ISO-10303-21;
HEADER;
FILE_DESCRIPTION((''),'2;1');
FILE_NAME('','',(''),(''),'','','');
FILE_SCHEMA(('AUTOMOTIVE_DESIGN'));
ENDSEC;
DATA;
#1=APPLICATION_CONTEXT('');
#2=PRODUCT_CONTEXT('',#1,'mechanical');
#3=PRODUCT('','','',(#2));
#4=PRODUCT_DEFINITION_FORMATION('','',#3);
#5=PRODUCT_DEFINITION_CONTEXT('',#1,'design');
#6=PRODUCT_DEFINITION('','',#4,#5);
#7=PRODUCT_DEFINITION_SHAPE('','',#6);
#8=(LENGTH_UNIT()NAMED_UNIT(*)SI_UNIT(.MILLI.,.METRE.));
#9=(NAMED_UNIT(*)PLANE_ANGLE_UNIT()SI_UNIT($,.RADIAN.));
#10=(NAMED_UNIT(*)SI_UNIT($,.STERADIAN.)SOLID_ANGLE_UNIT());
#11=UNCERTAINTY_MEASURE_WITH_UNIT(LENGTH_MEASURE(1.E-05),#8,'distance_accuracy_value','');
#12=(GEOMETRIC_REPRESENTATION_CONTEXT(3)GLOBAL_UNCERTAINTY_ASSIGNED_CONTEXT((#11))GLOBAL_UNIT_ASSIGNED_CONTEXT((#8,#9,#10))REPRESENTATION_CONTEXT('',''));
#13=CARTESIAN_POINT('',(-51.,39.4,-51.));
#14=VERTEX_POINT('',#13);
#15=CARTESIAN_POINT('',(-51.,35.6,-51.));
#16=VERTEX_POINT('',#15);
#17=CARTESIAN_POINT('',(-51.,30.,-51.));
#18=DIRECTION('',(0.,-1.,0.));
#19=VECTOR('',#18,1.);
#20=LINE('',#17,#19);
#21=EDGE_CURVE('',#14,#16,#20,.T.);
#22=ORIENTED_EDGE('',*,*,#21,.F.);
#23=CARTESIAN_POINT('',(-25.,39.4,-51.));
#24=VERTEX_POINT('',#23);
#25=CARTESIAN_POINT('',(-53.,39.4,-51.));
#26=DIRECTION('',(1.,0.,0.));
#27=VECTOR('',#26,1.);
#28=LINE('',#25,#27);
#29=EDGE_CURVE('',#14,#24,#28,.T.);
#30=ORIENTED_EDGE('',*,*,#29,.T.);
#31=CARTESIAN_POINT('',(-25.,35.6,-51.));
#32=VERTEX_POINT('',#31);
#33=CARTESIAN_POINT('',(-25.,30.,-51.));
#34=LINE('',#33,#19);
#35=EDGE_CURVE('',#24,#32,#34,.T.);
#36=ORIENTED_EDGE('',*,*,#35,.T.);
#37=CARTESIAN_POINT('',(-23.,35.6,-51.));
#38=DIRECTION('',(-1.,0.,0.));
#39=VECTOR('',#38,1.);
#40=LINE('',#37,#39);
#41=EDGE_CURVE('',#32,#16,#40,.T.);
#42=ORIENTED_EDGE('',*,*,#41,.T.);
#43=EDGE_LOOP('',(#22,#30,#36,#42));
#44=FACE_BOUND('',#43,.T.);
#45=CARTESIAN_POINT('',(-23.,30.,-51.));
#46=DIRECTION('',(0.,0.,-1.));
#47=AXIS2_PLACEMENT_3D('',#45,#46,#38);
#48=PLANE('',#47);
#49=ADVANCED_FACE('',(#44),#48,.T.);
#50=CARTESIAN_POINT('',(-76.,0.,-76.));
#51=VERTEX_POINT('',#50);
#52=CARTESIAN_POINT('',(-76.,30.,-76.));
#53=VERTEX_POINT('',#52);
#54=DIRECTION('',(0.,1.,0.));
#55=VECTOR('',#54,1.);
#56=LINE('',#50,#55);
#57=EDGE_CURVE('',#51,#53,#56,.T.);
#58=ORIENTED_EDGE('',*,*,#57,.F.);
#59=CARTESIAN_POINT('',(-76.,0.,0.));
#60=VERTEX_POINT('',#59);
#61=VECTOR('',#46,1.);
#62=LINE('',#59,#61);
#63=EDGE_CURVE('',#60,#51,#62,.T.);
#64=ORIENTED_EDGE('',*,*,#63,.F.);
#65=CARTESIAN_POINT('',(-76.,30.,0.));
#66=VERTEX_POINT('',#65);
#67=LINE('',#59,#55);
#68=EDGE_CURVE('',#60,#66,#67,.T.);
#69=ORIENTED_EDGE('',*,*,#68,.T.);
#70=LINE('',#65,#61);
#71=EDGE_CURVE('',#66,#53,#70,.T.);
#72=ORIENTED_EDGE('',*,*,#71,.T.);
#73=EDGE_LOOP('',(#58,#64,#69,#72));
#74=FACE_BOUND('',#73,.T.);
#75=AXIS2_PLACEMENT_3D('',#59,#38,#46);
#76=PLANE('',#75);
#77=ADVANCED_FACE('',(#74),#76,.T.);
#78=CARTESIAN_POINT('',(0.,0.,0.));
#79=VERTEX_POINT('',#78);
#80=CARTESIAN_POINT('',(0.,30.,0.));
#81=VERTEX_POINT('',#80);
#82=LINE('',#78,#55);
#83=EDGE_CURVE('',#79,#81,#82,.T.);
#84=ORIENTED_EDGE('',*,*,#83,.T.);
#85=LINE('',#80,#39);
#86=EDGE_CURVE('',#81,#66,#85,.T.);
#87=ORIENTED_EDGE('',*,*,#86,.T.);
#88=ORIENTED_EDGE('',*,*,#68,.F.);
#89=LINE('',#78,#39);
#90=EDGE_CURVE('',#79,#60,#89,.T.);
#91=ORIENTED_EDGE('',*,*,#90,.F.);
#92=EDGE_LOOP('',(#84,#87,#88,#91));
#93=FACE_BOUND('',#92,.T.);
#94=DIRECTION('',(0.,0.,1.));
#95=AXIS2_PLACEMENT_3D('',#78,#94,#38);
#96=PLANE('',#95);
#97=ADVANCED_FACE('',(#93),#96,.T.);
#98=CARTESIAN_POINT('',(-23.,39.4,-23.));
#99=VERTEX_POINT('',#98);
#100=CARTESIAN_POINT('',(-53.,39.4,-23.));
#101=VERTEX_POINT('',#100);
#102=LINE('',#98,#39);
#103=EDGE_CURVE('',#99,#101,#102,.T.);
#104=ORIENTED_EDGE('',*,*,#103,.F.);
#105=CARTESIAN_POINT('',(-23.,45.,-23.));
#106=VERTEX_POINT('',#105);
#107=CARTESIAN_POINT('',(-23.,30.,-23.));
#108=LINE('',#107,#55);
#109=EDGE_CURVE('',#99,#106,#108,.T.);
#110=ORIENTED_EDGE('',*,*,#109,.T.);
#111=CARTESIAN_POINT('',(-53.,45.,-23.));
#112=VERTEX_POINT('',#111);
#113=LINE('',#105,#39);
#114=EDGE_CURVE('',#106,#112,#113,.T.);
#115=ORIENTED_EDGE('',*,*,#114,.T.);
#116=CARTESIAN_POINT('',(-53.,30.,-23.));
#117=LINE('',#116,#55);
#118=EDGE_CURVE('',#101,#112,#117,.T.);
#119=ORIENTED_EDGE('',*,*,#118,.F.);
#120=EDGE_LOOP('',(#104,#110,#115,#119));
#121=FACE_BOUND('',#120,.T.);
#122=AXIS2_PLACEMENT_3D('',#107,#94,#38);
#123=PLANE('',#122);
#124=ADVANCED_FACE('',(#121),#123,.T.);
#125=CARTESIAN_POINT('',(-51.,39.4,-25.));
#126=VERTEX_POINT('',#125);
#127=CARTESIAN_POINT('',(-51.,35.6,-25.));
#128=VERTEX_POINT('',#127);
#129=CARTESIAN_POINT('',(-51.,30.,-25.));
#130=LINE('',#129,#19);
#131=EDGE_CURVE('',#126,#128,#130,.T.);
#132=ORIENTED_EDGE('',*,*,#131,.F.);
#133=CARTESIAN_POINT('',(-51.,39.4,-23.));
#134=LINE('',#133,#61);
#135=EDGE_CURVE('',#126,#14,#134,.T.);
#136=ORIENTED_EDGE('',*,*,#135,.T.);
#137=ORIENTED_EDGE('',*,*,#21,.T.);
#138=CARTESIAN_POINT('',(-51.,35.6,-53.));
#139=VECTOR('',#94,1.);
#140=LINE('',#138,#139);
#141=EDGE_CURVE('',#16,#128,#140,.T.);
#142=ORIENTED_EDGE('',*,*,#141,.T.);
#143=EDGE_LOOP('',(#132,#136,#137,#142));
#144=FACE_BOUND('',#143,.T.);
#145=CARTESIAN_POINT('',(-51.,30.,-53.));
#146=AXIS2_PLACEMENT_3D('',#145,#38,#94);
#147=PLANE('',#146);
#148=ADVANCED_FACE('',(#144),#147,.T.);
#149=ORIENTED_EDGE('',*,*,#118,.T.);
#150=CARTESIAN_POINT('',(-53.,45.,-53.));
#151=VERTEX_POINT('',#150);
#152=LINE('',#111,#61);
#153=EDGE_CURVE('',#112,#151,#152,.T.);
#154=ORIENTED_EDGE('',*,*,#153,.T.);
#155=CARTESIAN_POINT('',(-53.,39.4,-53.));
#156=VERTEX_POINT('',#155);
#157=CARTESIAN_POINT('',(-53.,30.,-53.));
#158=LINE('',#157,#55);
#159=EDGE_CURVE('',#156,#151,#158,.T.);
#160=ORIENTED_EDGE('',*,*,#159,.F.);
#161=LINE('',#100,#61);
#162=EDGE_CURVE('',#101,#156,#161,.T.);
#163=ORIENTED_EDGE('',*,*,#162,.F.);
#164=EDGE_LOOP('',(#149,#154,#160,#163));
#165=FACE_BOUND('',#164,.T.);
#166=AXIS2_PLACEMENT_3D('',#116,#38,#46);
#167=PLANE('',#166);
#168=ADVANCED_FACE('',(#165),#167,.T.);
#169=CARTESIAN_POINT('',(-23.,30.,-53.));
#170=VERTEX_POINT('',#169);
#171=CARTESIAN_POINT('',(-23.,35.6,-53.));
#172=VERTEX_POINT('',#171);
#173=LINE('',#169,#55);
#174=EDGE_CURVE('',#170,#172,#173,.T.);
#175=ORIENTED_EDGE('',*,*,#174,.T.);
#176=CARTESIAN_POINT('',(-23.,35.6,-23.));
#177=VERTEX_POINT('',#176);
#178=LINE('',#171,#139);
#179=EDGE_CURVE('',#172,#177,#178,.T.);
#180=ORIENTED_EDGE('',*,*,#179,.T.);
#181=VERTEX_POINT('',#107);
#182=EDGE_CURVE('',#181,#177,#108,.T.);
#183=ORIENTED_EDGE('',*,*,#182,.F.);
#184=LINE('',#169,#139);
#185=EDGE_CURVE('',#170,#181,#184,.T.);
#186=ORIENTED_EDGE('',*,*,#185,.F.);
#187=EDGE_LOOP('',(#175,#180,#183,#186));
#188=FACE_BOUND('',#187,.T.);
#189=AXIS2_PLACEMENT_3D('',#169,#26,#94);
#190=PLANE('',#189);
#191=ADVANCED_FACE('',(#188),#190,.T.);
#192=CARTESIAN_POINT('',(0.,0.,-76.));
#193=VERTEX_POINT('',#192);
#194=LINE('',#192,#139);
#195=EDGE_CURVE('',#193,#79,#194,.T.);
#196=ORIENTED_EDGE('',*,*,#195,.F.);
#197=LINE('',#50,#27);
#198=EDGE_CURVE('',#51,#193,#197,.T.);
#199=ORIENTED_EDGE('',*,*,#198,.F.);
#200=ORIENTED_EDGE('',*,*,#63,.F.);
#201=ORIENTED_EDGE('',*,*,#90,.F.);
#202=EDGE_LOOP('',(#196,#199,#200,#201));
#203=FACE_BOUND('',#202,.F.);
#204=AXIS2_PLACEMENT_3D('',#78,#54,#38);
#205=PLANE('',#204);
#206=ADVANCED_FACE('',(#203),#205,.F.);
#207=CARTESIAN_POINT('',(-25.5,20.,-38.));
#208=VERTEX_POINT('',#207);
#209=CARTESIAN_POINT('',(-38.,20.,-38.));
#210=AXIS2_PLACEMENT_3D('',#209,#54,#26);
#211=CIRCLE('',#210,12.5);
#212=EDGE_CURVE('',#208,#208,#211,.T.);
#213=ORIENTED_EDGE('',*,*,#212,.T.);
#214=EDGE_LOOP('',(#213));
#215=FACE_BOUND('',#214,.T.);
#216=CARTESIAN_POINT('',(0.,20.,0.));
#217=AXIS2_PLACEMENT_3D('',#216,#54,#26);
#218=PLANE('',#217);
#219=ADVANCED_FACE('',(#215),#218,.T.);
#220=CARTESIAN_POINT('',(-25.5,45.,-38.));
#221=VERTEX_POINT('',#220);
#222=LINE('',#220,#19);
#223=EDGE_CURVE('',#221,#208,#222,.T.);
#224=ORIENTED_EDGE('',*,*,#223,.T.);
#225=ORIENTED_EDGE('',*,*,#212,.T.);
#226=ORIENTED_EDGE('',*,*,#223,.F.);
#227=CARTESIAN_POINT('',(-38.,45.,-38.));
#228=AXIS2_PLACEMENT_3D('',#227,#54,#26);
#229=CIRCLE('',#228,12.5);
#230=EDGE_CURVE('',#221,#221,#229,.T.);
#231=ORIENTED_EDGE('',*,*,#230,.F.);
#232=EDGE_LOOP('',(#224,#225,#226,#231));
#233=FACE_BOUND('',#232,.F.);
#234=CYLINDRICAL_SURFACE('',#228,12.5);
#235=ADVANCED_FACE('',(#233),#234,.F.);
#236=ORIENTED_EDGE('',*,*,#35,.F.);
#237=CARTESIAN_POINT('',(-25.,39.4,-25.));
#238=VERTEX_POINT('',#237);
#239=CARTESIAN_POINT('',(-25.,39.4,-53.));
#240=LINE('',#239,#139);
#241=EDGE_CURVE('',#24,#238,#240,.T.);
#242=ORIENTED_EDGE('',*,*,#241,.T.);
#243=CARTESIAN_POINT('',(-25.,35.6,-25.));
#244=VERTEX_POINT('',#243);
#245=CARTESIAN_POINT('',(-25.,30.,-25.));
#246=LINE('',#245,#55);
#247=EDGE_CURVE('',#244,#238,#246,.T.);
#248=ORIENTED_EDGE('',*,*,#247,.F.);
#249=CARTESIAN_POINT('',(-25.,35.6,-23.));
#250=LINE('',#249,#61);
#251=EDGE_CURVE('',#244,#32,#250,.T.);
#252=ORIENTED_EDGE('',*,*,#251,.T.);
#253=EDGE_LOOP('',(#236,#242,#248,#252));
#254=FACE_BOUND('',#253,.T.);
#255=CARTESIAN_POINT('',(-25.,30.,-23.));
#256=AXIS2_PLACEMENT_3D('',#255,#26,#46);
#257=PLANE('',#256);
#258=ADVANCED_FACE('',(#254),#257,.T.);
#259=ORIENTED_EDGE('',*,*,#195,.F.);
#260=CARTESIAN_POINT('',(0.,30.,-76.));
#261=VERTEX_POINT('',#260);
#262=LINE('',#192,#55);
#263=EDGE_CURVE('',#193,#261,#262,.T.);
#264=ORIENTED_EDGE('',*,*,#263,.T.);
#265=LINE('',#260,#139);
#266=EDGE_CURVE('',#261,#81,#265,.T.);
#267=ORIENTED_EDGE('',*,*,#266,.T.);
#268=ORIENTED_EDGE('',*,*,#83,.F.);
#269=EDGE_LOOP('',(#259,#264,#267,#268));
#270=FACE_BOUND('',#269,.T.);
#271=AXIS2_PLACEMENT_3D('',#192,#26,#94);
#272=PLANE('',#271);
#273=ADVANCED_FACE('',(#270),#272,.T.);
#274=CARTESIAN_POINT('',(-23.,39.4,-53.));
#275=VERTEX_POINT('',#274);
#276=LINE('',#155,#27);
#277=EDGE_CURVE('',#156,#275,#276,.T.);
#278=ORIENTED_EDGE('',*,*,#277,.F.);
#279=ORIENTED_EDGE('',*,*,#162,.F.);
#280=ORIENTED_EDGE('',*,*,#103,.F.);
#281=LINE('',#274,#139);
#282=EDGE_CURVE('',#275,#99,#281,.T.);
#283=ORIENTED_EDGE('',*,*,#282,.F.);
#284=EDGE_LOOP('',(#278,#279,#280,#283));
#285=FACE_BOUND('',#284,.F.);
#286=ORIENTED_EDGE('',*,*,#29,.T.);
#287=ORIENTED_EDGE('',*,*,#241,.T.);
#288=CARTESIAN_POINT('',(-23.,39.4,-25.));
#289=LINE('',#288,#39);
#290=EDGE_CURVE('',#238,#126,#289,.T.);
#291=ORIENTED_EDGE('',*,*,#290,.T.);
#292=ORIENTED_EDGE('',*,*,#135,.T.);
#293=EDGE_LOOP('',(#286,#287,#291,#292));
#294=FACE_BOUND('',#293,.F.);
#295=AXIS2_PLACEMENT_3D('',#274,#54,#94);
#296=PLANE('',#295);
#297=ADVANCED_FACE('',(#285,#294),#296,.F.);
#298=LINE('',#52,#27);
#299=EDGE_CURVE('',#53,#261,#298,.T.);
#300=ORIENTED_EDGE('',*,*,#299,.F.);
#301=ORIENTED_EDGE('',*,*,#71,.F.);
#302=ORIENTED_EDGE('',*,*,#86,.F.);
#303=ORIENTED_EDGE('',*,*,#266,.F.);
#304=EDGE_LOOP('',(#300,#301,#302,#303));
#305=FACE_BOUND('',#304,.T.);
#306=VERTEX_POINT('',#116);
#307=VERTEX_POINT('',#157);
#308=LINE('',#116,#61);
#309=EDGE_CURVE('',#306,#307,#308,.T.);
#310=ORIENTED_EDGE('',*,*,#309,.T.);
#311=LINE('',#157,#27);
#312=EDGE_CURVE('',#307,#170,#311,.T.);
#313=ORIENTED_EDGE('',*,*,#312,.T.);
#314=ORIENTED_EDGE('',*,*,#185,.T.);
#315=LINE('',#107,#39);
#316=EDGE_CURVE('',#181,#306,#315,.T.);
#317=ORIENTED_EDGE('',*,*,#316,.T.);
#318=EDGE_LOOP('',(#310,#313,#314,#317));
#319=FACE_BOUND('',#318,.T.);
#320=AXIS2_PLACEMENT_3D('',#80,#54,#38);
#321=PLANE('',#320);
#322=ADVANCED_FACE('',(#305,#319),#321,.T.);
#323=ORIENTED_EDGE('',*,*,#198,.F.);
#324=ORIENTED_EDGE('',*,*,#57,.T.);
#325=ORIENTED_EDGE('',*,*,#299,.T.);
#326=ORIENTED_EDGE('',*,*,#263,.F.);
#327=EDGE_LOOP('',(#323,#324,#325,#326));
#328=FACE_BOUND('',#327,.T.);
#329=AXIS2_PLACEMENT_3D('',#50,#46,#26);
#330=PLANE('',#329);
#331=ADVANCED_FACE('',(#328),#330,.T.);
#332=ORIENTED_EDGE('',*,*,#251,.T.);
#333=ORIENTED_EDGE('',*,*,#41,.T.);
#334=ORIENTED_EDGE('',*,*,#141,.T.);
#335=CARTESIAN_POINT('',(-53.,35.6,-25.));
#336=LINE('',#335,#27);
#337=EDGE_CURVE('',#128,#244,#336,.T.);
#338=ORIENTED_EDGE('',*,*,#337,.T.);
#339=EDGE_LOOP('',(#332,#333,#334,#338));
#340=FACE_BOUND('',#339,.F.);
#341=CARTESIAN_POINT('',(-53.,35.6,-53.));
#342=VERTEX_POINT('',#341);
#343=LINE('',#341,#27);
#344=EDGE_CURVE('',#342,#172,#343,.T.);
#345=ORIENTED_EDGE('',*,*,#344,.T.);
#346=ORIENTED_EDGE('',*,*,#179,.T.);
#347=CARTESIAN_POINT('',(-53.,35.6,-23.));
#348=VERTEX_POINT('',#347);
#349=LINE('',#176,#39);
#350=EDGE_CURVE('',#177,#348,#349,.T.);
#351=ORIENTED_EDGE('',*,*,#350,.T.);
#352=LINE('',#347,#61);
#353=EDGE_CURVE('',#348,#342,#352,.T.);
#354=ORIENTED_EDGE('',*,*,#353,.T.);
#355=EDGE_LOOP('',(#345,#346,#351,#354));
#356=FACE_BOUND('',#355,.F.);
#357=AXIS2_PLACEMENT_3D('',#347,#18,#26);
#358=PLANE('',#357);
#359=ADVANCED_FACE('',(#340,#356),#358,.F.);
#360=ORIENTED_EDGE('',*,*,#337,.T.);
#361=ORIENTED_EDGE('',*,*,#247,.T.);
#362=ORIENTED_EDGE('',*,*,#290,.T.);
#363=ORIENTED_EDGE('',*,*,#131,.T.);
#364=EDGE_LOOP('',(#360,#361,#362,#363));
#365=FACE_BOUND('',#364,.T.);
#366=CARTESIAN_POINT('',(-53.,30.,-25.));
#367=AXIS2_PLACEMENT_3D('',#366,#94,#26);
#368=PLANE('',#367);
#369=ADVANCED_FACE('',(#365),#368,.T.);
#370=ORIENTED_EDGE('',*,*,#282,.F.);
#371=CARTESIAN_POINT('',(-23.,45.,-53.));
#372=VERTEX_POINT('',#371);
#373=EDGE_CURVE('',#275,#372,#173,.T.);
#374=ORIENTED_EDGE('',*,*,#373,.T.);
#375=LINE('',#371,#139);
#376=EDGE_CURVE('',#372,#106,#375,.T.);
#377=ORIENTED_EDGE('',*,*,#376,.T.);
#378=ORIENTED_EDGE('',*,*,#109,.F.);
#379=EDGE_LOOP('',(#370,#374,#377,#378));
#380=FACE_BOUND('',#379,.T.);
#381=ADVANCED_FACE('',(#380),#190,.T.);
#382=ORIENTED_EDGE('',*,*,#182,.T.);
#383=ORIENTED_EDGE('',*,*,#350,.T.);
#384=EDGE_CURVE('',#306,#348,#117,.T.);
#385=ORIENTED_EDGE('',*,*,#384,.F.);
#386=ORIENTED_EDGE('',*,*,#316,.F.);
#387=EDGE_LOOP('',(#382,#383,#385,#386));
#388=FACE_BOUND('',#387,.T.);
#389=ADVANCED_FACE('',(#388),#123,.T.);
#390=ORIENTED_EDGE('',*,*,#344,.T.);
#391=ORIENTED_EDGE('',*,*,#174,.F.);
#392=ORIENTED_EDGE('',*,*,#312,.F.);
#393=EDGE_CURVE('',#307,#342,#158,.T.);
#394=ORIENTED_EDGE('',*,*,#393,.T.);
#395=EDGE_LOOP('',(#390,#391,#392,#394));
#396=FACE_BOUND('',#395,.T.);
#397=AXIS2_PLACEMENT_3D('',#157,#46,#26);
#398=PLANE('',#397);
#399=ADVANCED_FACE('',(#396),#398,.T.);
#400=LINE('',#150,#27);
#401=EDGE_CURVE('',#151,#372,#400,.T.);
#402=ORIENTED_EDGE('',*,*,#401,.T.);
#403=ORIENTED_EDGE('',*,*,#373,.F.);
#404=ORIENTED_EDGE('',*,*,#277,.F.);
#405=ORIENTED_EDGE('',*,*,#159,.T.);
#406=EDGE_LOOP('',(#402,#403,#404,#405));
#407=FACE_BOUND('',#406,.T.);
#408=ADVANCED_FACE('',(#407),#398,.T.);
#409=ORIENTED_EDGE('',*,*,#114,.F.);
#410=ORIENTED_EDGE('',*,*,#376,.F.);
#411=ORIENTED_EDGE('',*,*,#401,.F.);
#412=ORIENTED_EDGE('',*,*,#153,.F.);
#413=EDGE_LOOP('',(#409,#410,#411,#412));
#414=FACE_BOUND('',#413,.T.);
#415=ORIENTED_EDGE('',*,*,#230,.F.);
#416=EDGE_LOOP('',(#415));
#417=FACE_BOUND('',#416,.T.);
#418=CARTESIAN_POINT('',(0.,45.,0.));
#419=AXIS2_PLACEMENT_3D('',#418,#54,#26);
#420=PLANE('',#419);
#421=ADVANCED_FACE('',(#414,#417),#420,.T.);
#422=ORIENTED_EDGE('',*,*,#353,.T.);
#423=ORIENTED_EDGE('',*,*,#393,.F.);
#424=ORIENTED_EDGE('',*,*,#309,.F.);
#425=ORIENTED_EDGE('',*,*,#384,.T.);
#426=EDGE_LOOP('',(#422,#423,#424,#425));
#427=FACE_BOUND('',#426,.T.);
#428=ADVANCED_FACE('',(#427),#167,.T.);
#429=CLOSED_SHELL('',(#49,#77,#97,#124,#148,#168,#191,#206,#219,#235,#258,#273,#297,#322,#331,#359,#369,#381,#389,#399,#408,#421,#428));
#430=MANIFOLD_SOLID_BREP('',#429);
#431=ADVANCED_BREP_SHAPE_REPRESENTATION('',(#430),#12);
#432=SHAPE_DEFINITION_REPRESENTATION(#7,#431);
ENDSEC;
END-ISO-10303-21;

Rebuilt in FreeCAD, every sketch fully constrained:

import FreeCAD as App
import Part
import Sketcher
from FreeCAD import Vector


def add_polygon(sketch, points):
    """Adds a closed chain of lines whose ends are joined by coincident constraints."""
    first, n = sketch.GeometryCount, len(points)
    for a, b in zip(points, points[1:] + points[:1]):
        sketch.addGeometry(Part.LineSegment(App.Vector(*a, 0), App.Vector(*b, 0)), False)
    for i in range(n):
        sketch.addConstraint(Sketcher.Constraint("Coincident", first + i, 2, first + (i + 1) % n, 1))

doc = App.newDocument("Part")
body = doc.addObject("PartDesign::Body", "Body")

sketch1 = body.newObject("Sketcher::SketchObject", "Sketch")
sketch1.AttachmentSupport = (doc.getObject("XZ_Plane"), [""])
sketch1.MapMode = "FlatFace"
add_polygon(sketch1, [(-76, 0), (0, 0), (0, -76), (-76, -76)])
sketch1.addConstraint([
    Sketcher.Constraint("Horizontal", 0),
    Sketcher.Constraint("Vertical", 1),
    Sketcher.Constraint("Horizontal", 2),
    Sketcher.Constraint("Vertical", 3),
    Sketcher.Constraint("Coincident", 0, 2, -1, 1),
    Sketcher.Constraint("Equal", 2, 1),
    Sketcher.Constraint("DistanceX", 0, 1, 0, 2, 76.0),
])
pad1 = body.newObject("PartDesign::Pad", "Pad")
pad1.Profile = sketch1
pad1.Length = 30
pad1.Reversed = True

sketch2 = body.newObject("Sketcher::SketchObject", "Sketch001")
sketch2.AttachmentSupport = (doc.getObject("XZ_Plane"), [""])
sketch2.MapMode = "FlatFace"
sketch2.AttachmentOffset = App.Placement(Vector(0, 0, -30), App.Rotation())
add_polygon(sketch2, [(-53, -23), (-23, -23), (-23, -53), (-53, -53)])
sketch2.addConstraint([
    Sketcher.Constraint("Horizontal", 0),
    Sketcher.Constraint("Vertical", 1),
    Sketcher.Constraint("Horizontal", 2),
    Sketcher.Constraint("Vertical", 3),
    Sketcher.Constraint("Equal", 2, 1),
    Sketcher.Constraint("DistanceX", 0, 1, 0, 2, 30.0),
    Sketcher.Constraint("DistanceX", 0, 2, -1, 1, 23.0),
    Sketcher.Constraint("DistanceY", 0, 2, -1, 1, 23.0),
])
pad2 = body.newObject("PartDesign::Pad", "Pad001")
pad2.Profile = sketch2
pad2.Length = 15
pad2.Reversed = True

sketch3 = body.newObject("Sketcher::SketchObject", "Sketch002")
sketch3.AttachmentSupport = (doc.getObject("XY_Plane"), [""])
sketch3.MapMode = "FlatFace"
sketch3.AttachmentOffset = App.Placement(Vector(0, 0, -23), App.Rotation())
add_polygon(sketch3, [(-53, 39.4), (-53, 35.6), (-23, 35.6), (-23, 39.4)])
sketch3.addConstraint([
    Sketcher.Constraint("Vertical", 0),
    Sketcher.Constraint("Horizontal", 1),
    Sketcher.Constraint("Vertical", 2),
    Sketcher.Constraint("Horizontal", 3),
    Sketcher.Constraint("DistanceY", 0, 2, 0, 1, 3.8),
    Sketcher.Constraint("DistanceX", 1, 1, 1, 2, 30.0),
    Sketcher.Constraint("DistanceX", 0, 2, -1, 1, 53.0),
    Sketcher.Constraint("DistanceY", -1, 1, 0, 2, 35.6),
])
pocket1 = body.newObject("PartDesign::Pocket", "Pocket")
pocket1.Profile = sketch3
pocket1.Length = 2

sketch4 = body.newObject("Sketcher::SketchObject", "Sketch003")
sketch4.AttachmentSupport = (doc.getObject("YZ_Plane"), [""])
sketch4.MapMode = "FlatFace"
sketch4.AttachmentOffset = App.Placement(Vector(0, 0, -53), App.Rotation())
add_polygon(sketch4, [(39.4, -53), (35.6, -53), (35.6, -23), (39.4, -23)])
sketch4.addConstraint([
    Sketcher.Constraint("Horizontal", 0),
    Sketcher.Constraint("Vertical", 1),
    Sketcher.Constraint("Horizontal", 2),
    Sketcher.Constraint("Vertical", 3),
    Sketcher.Constraint("DistanceX", 0, 2, 0, 1, 3.8),
    Sketcher.Constraint("DistanceY", 1, 1, 1, 2, 30.0),
    Sketcher.Constraint("DistanceY", 0, 2, -1, 1, 53.0),
    Sketcher.Constraint("DistanceX", -1, 1, 0, 2, 35.6),
])
pocket2 = body.newObject("PartDesign::Pocket", "Pocket001")
pocket2.Profile = sketch4
pocket2.Length = 2
pocket2.Reversed = True

sketch5 = body.newObject("Sketcher::SketchObject", "Sketch004")
sketch5.AttachmentSupport = (doc.getObject("XY_Plane"), [""])
sketch5.MapMode = "FlatFace"
sketch5.AttachmentOffset = App.Placement(Vector(0, 0, -53), App.Rotation())
add_polygon(sketch5, [(-23, 39.4), (-23, 35.6), (-53, 35.6), (-53, 39.4)])
sketch5.addConstraint([
    Sketcher.Constraint("Vertical", 0),
    Sketcher.Constraint("Horizontal", 1),
    Sketcher.Constraint("Vertical", 2),
    Sketcher.Constraint("Horizontal", 3),
    Sketcher.Constraint("DistanceY", 0, 2, 0, 1, 3.8),
    Sketcher.Constraint("DistanceX", 1, 2, 1, 1, 30.0),
    Sketcher.Constraint("DistanceX", 0, 2, -1, 1, 23.0),
    Sketcher.Constraint("DistanceY", -1, 1, 0, 2, 35.6),
])
pocket3 = body.newObject("PartDesign::Pocket", "Pocket002")
pocket3.Profile = sketch5
pocket3.Length = 2
pocket3.Reversed = True

sketch6 = body.newObject("Sketcher::SketchObject", "Sketch005")
sketch6.AttachmentSupport = (doc.getObject("YZ_Plane"), [""])
sketch6.MapMode = "FlatFace"
sketch6.AttachmentOffset = App.Placement(Vector(0, 0, -23), App.Rotation())
add_polygon(sketch6, [(39.4, -23), (35.6, -23), (35.6, -53), (39.4, -53)])
sketch6.addConstraint([
    Sketcher.Constraint("Horizontal", 0),
    Sketcher.Constraint("Vertical", 1),
    Sketcher.Constraint("Horizontal", 2),
    Sketcher.Constraint("Vertical", 3),
    Sketcher.Constraint("DistanceX", 0, 2, 0, 1, 3.8),
    Sketcher.Constraint("DistanceY", 1, 2, 1, 1, 30.0),
    Sketcher.Constraint("DistanceY", 0, 2, -1, 1, 23.0),
    Sketcher.Constraint("DistanceX", -1, 1, 0, 2, 35.6),
])
pocket4 = body.newObject("PartDesign::Pocket", "Pocket003")
pocket4.Profile = sketch6
pocket4.Length = 2

sketch7 = body.newObject("Sketcher::SketchObject", "Sketch006")
sketch7.AttachmentSupport = (doc.getObject("XZ_Plane"), [""])
sketch7.MapMode = "FlatFace"
sketch7.AttachmentOffset = App.Placement(Vector(0, 0, -45), App.Rotation())
sketch7.addGeometry(Part.Circle(Vector(-38, -38, 0), Vector(0, 0, 1), 12.5), False)
sketch7.addConstraint([
    Sketcher.Constraint("Diameter", 0, 25.0),
    Sketcher.Constraint("DistanceX", 0, 3, -1, 1, 38.0),
    Sketcher.Constraint("DistanceY", 0, 3, -1, 1, 38.0),
])
pocket5 = body.newObject("PartDesign::Pocket", "Pocket004")
pocket5.Profile = sketch7
pocket5.Length = 25
pocket5.Reversed = True

doc.recompute()
